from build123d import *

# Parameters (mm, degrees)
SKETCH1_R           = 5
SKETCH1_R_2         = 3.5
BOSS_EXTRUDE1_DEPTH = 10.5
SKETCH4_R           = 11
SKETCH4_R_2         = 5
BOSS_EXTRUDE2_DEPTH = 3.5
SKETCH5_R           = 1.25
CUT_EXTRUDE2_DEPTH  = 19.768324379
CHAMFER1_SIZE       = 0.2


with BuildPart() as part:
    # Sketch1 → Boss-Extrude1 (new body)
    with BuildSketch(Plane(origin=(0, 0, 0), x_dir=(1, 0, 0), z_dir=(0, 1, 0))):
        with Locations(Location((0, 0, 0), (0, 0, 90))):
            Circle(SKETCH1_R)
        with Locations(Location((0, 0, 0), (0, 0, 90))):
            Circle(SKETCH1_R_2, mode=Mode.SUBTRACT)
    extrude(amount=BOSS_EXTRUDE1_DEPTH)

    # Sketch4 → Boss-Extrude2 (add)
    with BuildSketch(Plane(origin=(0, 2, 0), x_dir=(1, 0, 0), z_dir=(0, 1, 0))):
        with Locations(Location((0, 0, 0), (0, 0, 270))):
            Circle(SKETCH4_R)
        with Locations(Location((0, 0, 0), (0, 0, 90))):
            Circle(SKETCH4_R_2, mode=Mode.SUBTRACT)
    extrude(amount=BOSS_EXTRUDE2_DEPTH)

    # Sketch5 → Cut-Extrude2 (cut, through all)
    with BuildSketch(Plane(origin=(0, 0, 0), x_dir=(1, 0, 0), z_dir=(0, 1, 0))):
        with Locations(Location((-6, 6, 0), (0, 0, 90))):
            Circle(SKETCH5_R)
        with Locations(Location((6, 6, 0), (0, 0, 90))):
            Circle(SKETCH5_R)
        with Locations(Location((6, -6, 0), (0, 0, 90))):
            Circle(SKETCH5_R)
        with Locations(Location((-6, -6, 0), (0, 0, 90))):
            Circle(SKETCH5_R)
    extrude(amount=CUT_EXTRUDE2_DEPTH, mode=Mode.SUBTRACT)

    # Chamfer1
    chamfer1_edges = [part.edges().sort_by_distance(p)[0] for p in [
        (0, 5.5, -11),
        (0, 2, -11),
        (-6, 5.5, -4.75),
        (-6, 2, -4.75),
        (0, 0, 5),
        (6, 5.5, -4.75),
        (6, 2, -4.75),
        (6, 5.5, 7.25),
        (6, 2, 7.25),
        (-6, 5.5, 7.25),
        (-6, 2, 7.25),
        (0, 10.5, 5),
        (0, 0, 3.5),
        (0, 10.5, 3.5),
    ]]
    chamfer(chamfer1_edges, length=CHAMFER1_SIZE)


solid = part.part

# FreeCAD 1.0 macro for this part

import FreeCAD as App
import Part
import Sketcher
from FreeCAD import Vector
Q = App.Units.Quantity


def edges_at(feature, points):
    """Names of the edges that pass closest to the given points."""
    edges = feature.Shape.Edges
    near = lambda p: min(range(len(edges)), key=lambda i: edges[i].distToShape(Part.Vertex(*p))[0])
    return sorted({f"Edge{near(p) + 1}" for p in points})

doc = App.newDocument("Part")
body = doc.addObject("PartDesign::Body", "Body")

sketch1 = body.newObject("Sketcher::SketchObject", "Sketch")
sketch1.AttachmentSupport = (doc.getObject("XZ_Plane"), [""])
sketch1.MapMode = "FlatFace"
sketch1.addGeometry([
    Part.Circle(Vector(0, 0, 0), Vector(0, 0, 1), 5),
    Part.Circle(Vector(0, 0, 0), Vector(0, 0, 1), 3.5),
], False)
sketch1.addConstraint([
    Sketcher.Constraint("Coincident", 0, 3, -1, 1),
    Sketcher.Constraint("Coincident", 1, 3, -1, 1),
    Sketcher.Constraint("Diameter", 0, Q("10 mm")),
    Sketcher.Constraint("Diameter", 1, Q("7 mm")),
])
pad1 = body.newObject("PartDesign::Pad", "Pad")
pad1.Profile = sketch1
pad1.Length = 10.5
pad1.Reversed = True

sketch2 = body.newObject("Sketcher::SketchObject", "Sketch001")
sketch2.AttachmentSupport = (doc.getObject("XZ_Plane"), [""])
sketch2.MapMode = "FlatFace"
sketch2.AttachmentOffset = App.Placement(Vector(0, 0, -2), App.Rotation())
sketch2.addGeometry([
    Part.Circle(Vector(0, 0, 0), Vector(0, 0, 1), 11),
    Part.Circle(Vector(0, 0, 0), Vector(0, 0, 1), 5),
], False)
sketch2.addConstraint([
    Sketcher.Constraint("Coincident", 0, 3, -1, 1),
    Sketcher.Constraint("Coincident", 1, 3, -1, 1),
    Sketcher.Constraint("Diameter", 0, Q("22 mm")),
    Sketcher.Constraint("Diameter", 1, Q("10 mm")),
])
pad2 = body.newObject("PartDesign::Pad", "Pad001")
pad2.Profile = sketch2
pad2.Length = 3.5
pad2.Reversed = True

sketch3 = body.newObject("Sketcher::SketchObject", "Sketch002")
sketch3.AttachmentSupport = (doc.getObject("XZ_Plane"), [""])
sketch3.MapMode = "FlatFace"
sketch3.addGeometry([
    Part.Circle(Vector(-6, -6, 0), Vector(0, 0, 1), 1.2),
    Part.Circle(Vector(6, -6, 0), Vector(0, 0, 1), 1.2),
    Part.Circle(Vector(6, 6, 0), Vector(0, 0, 1), 1.2),
    Part.Circle(Vector(-6, 6, 0), Vector(0, 0, 1), 1.2),
], False)
sketch3.addConstraint([
    Sketcher.Constraint("Equal", 0, 1),
    Sketcher.Constraint("Equal", 1, 2),
    Sketcher.Constraint("Equal", 2, 3),
    Sketcher.Constraint("Symmetric", 0, 3, 2, 3, -1, 1),
    Sketcher.Constraint("Symmetric", 1, 3, 3, 3, -1, 1),
    Sketcher.Constraint("Symmetric", 0, 3, 1, 3, -2),
    Sketcher.Constraint("Diameter", 0, Q("2.5 mm")),
    Sketcher.Constraint("DistanceX", 0, 3, -1, 1, Q("6 mm")),
    Sketcher.Constraint("DistanceY", 0, 3, -1, 1, Q("6 mm")),
])
pocket1 = body.newObject("PartDesign::Pocket", "Pocket")
pocket1.Profile = sketch3
pocket1.Type = "ThroughAll"
doc.recompute()

chamfer = body.newObject("PartDesign::Chamfer", "Chamfer")
chamfer.Base = (pocket1, edges_at(pocket1, [
    (0, 5.5, -11),
    (0, 2, -11),
    (-6, 5.5, -4.75),
    (-6, 2, -4.75),
    (0, 0, 5),
    (6, 5.5, -4.75),
    (6, 2, -4.75),
    (6, 5.5, 7.25),
    (6, 2, 7.25),
    (-6, 5.5, 7.25),
    (-6, 2, 7.25),
    (0, 10.5, 5),
    (0, 0, 3.5),
    (0, 10.5, 3.5),
]))
chamfer.Size = 0.2

doc.recompute()
